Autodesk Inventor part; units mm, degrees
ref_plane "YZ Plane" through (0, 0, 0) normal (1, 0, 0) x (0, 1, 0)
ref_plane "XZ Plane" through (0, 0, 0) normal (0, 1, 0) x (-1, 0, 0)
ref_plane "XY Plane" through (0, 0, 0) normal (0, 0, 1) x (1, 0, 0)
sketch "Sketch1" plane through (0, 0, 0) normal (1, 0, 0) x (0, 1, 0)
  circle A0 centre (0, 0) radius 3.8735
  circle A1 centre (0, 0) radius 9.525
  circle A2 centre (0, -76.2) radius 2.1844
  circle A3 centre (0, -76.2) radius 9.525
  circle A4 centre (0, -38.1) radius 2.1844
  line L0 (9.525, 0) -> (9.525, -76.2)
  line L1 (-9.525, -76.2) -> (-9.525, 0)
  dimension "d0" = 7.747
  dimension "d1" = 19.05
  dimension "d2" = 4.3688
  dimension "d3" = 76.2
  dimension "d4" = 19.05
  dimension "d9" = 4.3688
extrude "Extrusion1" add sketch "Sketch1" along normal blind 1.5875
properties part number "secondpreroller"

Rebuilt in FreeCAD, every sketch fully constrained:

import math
import FreeCAD as App
import Part
import Sketcher
from FreeCAD import Vector
Q = App.Units.Quantity

doc = App.newDocument("Part")
body = doc.addObject("PartDesign::Body", "Body")

# Sketch on YZ plane
sketch1 = doc.addObject("Sketcher::SketchObject", "Sketch")
body.addObject(sketch1)
sketch1.AttachmentSupport = (doc.YZ_Plane, [""])
sketch1.MapMode = "FlatFace"
sketch1.addGeometry(Part.ArcOfCircle(Part.Circle(Vector(0, 0, 0), Vector(0, 0, 1), 9.525), math.radians(0), math.radians(180)), False)
sketch1.addGeometry(Part.LineSegment(Vector(-9.525, 0, 0), Vector(-9.525, -76.2, 0)), False)
sketch1.addGeometry(Part.ArcOfCircle(Part.Circle(Vector(0, -76.2, 0), Vector(0, 0, 1), 9.525), math.radians(180), math.radians(360)), False)
sketch1.addGeometry(Part.LineSegment(Vector(9.525, -76.2, 0), Vector(9.525, 0, 0)), False)
sketch1.addGeometry(Part.Circle(Vector(0, 0, 0), Vector(0, 0, 1), 3.8735), False)
sketch1.addGeometry(Part.Circle(Vector(0, -38.1, 0), Vector(0, 0, 1), 2.1844), False)
sketch1.addGeometry(Part.Circle(Vector(0, -76.2, 0), Vector(0, 0, 1), 2.1844), False)
sketch1.addConstraint(Sketcher.Constraint("Tangent", 0, 2, 1, 1))
sketch1.addConstraint(Sketcher.Constraint("Tangent", 1, 2, 2, 1))
sketch1.addConstraint(Sketcher.Constraint("Tangent", 2, 2, 3, 1))
sketch1.addConstraint(Sketcher.Constraint("Tangent", 3, 2, 0, 1))
sketch1.addConstraint(Sketcher.Constraint("Vertical", 1))
sketch1.addConstraint(Sketcher.Constraint("Vertical", 3))
sketch1.addConstraint(Sketcher.Constraint("Coincident", 0, 3, -1, 1))
sketch1.addConstraint(Sketcher.Constraint("Coincident", 4, 3, -1, 1))
sketch1.addConstraint(Sketcher.Constraint("Coincident", 6, 3, 2, 3))
sketch1.addConstraint(Sketcher.Constraint("Equal", 5, 6))
sketch1.addConstraint(Sketcher.Constraint("PointOnObject", 5, 3, -2))
sketch1.addConstraint(Sketcher.Constraint("DistanceY", 1, 2, 1, 1, Q("3 in")))
sketch1.addConstraint(Sketcher.Constraint("Diameter", 4, Q("0.305 in")))
sketch1.addConstraint(Sketcher.Constraint("Diameter", 5, Q("0.172 in")))
sketch1.addConstraint(Sketcher.Constraint("Radius", 0, Q("0.375 in")))
sketch1.addConstraint(Sketcher.Constraint("DistanceY", 5, 3, -1, 1, Q("1.5 in")))
pad1 = doc.addObject("PartDesign::Pad", "Pad")
body.addObject(pad1)
pad1.Profile = sketch1
pad1.Length = Q("0.0625 in")

doc.recompute()
